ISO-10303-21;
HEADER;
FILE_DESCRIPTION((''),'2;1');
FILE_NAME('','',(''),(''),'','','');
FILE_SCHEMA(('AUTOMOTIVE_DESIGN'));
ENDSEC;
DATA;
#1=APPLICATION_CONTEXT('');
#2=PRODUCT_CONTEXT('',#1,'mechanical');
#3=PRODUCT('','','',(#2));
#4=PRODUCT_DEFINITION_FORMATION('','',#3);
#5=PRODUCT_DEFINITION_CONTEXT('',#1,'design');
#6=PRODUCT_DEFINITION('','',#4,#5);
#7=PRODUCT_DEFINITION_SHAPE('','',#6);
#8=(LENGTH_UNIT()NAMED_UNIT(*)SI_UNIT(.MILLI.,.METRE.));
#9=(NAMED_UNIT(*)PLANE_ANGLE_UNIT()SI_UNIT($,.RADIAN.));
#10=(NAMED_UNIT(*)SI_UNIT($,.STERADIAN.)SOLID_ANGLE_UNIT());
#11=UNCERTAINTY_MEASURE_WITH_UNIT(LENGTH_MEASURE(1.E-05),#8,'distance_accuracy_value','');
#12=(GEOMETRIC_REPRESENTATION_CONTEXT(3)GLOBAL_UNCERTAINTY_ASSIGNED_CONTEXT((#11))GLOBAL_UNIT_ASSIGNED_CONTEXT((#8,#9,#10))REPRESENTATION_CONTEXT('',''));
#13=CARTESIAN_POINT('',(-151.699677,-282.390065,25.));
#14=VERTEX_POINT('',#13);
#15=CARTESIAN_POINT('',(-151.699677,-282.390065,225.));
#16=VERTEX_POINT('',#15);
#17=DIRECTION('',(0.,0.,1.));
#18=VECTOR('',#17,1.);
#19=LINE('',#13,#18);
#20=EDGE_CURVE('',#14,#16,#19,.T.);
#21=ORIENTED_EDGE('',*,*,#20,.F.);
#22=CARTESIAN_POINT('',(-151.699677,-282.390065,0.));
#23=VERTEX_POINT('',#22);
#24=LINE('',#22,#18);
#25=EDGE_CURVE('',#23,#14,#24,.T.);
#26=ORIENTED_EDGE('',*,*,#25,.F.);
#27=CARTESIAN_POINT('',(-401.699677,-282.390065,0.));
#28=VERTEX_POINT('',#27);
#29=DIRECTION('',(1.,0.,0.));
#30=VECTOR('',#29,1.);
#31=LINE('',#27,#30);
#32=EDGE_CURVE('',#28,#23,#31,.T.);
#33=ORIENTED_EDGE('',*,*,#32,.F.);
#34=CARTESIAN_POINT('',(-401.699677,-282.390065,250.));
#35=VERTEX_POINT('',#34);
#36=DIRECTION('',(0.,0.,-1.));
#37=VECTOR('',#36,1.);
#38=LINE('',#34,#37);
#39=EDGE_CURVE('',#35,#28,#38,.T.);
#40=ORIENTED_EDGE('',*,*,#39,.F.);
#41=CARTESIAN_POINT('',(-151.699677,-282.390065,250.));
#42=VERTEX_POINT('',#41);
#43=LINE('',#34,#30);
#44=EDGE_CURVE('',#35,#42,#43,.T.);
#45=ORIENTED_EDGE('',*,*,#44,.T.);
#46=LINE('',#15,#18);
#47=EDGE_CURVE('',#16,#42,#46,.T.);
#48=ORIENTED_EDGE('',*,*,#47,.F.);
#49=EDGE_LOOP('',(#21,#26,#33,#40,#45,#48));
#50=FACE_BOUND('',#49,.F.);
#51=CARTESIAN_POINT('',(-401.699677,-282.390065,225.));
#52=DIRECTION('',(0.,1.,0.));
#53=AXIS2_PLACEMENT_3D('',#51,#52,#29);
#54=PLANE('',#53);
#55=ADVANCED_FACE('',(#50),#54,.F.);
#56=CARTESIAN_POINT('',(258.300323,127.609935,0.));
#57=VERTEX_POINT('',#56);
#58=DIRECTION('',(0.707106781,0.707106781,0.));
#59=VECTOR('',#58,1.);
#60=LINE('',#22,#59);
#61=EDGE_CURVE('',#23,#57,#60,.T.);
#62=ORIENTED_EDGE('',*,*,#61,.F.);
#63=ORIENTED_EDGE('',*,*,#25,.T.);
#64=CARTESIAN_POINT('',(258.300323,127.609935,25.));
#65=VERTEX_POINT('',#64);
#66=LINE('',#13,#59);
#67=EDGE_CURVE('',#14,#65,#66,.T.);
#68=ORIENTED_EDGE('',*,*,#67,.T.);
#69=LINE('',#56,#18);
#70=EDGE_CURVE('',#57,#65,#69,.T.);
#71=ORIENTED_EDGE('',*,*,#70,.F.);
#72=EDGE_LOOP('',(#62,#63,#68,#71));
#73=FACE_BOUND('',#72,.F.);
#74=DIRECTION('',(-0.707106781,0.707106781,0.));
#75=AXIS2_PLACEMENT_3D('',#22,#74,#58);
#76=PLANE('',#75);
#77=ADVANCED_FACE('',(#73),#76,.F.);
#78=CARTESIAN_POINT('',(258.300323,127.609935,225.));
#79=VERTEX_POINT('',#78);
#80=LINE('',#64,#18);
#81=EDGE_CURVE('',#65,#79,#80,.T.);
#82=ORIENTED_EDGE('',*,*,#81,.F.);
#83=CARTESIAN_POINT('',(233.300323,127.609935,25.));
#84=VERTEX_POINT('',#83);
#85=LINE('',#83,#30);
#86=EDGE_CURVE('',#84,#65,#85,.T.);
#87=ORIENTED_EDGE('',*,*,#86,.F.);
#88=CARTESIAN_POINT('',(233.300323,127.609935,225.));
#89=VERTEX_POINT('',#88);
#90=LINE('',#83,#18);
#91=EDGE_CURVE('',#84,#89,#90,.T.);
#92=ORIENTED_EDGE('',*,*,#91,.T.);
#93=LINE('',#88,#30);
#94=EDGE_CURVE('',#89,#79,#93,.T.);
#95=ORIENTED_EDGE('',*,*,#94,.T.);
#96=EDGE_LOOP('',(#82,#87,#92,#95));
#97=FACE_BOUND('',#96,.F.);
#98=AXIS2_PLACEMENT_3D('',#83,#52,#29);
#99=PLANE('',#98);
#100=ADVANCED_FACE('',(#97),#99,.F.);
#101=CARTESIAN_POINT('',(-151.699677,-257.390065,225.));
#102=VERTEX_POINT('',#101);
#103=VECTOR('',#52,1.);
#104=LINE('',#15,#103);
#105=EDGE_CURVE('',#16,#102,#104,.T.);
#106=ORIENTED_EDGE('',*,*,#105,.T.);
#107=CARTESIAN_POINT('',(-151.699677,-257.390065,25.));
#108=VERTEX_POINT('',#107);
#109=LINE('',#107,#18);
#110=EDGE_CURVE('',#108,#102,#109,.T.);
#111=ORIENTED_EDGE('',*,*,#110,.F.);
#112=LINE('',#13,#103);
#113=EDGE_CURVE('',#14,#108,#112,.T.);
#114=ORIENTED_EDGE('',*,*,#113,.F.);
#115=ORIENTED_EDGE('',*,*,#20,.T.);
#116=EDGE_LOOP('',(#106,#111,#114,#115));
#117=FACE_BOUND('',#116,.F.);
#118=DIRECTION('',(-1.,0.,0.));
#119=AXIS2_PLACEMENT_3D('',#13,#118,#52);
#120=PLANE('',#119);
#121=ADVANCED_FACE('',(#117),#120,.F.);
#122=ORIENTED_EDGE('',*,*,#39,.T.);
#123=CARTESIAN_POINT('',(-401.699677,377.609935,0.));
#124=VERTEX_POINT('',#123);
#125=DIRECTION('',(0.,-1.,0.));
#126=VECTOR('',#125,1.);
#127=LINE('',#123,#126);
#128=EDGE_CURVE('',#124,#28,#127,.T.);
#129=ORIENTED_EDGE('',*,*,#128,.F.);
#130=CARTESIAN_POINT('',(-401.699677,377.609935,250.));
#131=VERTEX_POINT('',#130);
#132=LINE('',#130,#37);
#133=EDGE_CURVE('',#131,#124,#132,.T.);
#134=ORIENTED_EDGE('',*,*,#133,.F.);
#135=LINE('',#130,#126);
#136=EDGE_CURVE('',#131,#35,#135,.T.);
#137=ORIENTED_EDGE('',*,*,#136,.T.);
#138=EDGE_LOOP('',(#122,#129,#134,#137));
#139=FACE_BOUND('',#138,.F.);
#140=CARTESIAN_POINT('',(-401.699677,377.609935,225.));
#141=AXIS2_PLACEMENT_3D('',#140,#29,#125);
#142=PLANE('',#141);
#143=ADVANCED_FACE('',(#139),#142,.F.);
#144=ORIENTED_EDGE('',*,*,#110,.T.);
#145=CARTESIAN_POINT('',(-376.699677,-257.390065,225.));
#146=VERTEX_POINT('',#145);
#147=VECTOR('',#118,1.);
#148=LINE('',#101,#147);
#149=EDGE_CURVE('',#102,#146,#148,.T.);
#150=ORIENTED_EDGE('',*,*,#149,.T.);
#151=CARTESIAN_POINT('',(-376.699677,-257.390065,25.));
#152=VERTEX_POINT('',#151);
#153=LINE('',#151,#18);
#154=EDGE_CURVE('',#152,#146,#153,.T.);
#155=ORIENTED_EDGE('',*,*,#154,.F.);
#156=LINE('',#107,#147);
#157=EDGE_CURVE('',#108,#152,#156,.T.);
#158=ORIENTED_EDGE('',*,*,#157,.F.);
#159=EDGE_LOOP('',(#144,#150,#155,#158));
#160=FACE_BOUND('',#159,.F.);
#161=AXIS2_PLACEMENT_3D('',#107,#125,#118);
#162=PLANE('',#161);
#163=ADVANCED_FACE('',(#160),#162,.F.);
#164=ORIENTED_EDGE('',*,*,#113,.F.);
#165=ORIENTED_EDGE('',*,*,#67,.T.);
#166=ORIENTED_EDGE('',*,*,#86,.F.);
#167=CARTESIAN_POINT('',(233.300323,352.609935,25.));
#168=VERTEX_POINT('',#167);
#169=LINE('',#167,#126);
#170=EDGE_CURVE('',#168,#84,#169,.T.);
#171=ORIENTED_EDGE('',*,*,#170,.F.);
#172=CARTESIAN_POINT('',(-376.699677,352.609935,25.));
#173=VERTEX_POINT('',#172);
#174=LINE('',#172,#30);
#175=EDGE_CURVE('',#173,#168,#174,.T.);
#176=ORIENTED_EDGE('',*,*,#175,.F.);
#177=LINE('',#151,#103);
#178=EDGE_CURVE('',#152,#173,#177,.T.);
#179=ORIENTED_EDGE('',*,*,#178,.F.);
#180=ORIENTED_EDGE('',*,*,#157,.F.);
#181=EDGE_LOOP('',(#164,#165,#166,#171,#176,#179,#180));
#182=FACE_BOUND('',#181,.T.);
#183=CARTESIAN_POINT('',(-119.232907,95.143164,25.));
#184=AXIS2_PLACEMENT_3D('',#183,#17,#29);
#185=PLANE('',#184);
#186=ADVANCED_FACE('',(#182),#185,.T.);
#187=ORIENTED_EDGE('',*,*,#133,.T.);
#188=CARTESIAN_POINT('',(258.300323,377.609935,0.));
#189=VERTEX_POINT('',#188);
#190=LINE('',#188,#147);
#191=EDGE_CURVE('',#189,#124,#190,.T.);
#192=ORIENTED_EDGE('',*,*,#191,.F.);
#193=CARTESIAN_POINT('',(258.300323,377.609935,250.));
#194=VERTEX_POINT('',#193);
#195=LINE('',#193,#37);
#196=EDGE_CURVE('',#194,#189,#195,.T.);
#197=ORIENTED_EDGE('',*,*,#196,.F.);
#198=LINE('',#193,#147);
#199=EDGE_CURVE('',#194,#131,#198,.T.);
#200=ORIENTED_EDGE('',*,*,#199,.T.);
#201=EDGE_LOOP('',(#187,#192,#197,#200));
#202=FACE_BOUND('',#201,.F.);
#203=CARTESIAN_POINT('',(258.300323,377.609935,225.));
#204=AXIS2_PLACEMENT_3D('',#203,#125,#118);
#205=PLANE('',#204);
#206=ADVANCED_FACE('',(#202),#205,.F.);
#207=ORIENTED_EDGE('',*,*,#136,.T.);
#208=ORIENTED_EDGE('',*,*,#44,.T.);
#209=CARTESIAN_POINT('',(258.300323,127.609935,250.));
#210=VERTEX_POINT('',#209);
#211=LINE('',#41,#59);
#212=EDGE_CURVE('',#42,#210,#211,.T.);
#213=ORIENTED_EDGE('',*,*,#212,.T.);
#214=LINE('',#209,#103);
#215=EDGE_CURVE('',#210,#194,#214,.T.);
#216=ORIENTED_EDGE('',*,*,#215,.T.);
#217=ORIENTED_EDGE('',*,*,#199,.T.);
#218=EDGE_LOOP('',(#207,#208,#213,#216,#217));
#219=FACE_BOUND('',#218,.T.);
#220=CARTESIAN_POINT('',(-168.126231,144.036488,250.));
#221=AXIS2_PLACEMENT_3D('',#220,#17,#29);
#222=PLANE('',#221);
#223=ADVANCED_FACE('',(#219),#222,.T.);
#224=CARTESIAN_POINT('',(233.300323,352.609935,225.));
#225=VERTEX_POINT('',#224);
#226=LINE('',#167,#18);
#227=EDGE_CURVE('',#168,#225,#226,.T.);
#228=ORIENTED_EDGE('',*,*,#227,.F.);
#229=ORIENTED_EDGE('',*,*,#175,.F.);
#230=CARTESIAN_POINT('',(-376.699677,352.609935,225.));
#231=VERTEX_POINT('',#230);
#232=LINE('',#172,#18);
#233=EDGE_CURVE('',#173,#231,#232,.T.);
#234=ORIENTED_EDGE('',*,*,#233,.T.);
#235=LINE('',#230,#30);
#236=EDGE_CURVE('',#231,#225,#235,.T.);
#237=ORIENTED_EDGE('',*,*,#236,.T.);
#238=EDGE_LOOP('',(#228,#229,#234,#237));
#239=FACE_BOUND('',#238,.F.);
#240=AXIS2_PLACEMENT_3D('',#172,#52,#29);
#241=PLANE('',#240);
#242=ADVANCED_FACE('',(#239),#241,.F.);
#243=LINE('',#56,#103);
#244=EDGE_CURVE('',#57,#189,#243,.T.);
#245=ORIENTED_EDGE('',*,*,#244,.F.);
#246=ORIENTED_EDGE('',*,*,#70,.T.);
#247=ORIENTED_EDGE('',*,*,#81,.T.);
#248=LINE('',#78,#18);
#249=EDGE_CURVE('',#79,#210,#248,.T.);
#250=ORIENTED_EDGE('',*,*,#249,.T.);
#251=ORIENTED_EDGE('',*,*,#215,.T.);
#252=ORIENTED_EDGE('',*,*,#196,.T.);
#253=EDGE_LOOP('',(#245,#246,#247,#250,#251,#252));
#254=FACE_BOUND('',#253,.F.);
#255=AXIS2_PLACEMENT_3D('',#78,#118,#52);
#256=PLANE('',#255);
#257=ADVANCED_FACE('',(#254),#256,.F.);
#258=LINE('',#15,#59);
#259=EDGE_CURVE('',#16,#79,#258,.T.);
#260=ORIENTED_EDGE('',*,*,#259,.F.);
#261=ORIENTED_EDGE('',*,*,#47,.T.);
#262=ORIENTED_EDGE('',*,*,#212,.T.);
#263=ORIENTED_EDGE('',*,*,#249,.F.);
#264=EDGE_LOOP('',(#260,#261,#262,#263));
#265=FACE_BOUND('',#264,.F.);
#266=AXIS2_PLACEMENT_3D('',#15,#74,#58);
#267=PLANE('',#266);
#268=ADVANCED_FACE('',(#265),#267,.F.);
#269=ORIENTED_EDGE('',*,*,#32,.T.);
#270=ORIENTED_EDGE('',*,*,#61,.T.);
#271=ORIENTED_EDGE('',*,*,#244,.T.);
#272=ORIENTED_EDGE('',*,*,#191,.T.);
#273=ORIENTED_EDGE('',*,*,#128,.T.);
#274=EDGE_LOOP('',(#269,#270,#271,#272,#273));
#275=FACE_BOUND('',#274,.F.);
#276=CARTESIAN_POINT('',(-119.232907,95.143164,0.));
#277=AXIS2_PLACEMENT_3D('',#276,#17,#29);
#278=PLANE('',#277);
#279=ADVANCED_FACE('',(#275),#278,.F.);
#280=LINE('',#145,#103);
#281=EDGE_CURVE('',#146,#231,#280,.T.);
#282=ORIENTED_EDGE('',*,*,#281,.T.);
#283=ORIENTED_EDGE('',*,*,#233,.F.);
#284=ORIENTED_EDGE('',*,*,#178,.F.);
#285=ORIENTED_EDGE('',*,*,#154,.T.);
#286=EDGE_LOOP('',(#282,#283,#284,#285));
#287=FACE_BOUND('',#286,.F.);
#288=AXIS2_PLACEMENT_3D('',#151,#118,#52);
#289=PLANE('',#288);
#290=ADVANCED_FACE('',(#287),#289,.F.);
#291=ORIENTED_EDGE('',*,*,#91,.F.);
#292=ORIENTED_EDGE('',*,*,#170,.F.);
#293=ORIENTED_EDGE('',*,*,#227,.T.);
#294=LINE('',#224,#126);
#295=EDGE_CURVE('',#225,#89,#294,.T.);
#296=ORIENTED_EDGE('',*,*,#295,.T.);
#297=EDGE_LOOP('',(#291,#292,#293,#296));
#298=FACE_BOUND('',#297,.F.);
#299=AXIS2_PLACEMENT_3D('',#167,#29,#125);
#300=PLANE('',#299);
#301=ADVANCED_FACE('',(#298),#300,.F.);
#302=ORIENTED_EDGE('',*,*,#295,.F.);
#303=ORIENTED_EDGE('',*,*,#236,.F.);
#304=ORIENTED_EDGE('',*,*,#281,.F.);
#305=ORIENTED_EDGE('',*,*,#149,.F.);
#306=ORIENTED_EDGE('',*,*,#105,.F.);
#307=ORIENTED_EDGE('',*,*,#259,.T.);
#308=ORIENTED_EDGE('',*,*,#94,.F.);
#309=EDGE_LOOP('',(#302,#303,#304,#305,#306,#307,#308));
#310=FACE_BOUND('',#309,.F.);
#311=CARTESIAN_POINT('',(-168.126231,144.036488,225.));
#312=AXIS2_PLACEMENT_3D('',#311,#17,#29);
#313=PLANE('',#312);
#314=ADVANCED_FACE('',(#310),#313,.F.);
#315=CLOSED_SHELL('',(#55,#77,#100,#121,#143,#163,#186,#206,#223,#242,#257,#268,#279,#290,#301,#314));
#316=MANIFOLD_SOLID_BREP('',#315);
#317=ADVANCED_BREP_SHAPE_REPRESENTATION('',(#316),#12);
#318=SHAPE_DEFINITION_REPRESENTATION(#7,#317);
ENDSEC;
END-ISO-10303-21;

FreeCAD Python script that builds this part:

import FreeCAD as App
import Part
import Sketcher


def add_polygon(sketch, points):
    """Adds a closed chain of lines whose ends are joined by coincident constraints."""
    first, n = sketch.GeometryCount, len(points)
    for a, b in zip(points, points[1:] + points[:1]):
        sketch.addGeometry(Part.LineSegment(App.Vector(*a, 0), App.Vector(*b, 0)), False)
    for i in range(n):
        sketch.addConstraint(Sketcher.Constraint("Coincident", first + i, 2, first + (i + 1) % n, 1))

doc = App.newDocument("Part")
body = doc.addObject("PartDesign::Body", "Body")

sketch1 = body.newObject("Sketcher::SketchObject", "Sketch")
sketch1.AttachmentSupport = (doc.getObject("XY_Plane"), [""])
sketch1.MapMode = "FlatFace"
add_polygon(sketch1, [(-401.699677, 377.609935), (-401.699677, -282.390065), (-151.699677, -282.390065), (258.300323, 127.609935), (258.300323, 377.609935)])
sketch1.addConstraint([
    Sketcher.Constraint("Vertical", 0),
    Sketcher.Constraint("Horizontal", 1),
    Sketcher.Constraint("Vertical", 3),
    Sketcher.Constraint("Horizontal", 4),
    Sketcher.Constraint("Equal", 4, 0),
    Sketcher.Constraint("Equal", 1, 3),
    Sketcher.Constraint("DistanceX", 1, 1, 1, 2, 250.0),
    Sketcher.Constraint("DistanceX", 4, 2, 4, 1, 660.0),
    Sketcher.Constraint("DistanceX", 0, 2, -1, 1, 401.699677),
    Sketcher.Constraint("DistanceY", 0, 2, -1, 1, 282.390065),
])
pad1 = body.newObject("PartDesign::Pad", "Pad")
pad1.Profile = sketch1
pad1.Length = 25

sketch2 = body.newObject("Sketcher::SketchObject", "Sketch001")
sketch2.AttachmentSupport = (doc.getObject("XY_Plane"), [""])
sketch2.MapMode = "FlatFace"
sketch2.AttachmentOffset = App.Placement(App.Vector(0, 0, 25), App.Rotation())
add_polygon(sketch2, [(-376.699677, -257.390065), (-376.699677, 352.609935), (233.300323, 352.609935), (233.300323, 127.609935), (258.300323, 127.609935), (258.300323, 377.609935), (-401.699677, 377.609935), (-401.699677, -282.390065), (-151.699677, -282.390065), (-151.699677, -257.390065)])
sketch2.addConstraint([
    Sketcher.Constraint("Vertical", 0),
    Sketcher.Constraint("Horizontal", 1),
    Sketcher.Constraint("Vertical", 2),
    Sketcher.Constraint("Horizontal", 3),
    Sketcher.Constraint("Vertical", 4),
    Sketcher.Constraint("Horizontal", 5),
    Sketcher.Constraint("Vertical", 6),
    Sketcher.Constraint("Horizontal", 7),
    Sketcher.Constraint("Vertical", 8),
    Sketcher.Constraint("Horizontal", 9),
    Sketcher.Constraint("Equal", 1, 0),
    Sketcher.Constraint("Equal", 9, 2),
    Sketcher.Constraint("Equal", 7, 4),
    Sketcher.Constraint("Equal", 5, 6),
    Sketcher.Constraint("DistanceX", 1, 1, 1, 2, 610.0),
    Sketcher.Constraint("DistanceX", 3, 1, 3, 2, 25.0),
    Sketcher.Constraint("DistanceX", 5, 2, 5, 1, 660.0),
    Sketcher.Constraint("DistanceX", 7, 1, 7, 2, 250.0),
    Sketcher.Constraint("DistanceX", 0, 2, -1, 1, 376.699677),
    Sketcher.Constraint("DistanceY", -1, 1, 0, 2, 352.609935),
])
pad2 = body.newObject("PartDesign::Pad", "Pad001")
pad2.Profile = sketch2
pad2.Length = 200

sketch3 = body.newObject("Sketcher::SketchObject", "Sketch002")
sketch3.AttachmentSupport = (doc.getObject("XY_Plane"), [""])
sketch3.MapMode = "FlatFace"
sketch3.AttachmentOffset = App.Placement(App.Vector(0, 0, 225), App.Rotation())
add_polygon(sketch3, [(-401.699677, -282.390065), (-151.699677, -282.390065), (258.300323, 127.609935), (258.300323, 377.609935), (-401.699677, 377.609935)])
sketch3.addConstraint([
    Sketcher.Constraint("Horizontal", 0),
    Sketcher.Constraint("Vertical", 2),
    Sketcher.Constraint("Horizontal", 3),
    Sketcher.Constraint("Vertical", 4),
    Sketcher.Constraint("Equal", 0, 2),
    Sketcher.Constraint("Equal", 3, 4),
    Sketcher.Constraint("DistanceX", 0, 1, 0, 2, 250.0),
    Sketcher.Constraint("DistanceX", 3, 2, 3, 1, 660.0),
    Sketcher.Constraint("DistanceX", 0, 2, -1, 1, 151.699677),
    Sketcher.Constraint("DistanceY", 0, 2, -1, 1, 282.390065),
])
pad3 = body.newObject("PartDesign::Pad", "Pad002")
pad3.Profile = sketch3
pad3.Length = 25

doc.recompute()
